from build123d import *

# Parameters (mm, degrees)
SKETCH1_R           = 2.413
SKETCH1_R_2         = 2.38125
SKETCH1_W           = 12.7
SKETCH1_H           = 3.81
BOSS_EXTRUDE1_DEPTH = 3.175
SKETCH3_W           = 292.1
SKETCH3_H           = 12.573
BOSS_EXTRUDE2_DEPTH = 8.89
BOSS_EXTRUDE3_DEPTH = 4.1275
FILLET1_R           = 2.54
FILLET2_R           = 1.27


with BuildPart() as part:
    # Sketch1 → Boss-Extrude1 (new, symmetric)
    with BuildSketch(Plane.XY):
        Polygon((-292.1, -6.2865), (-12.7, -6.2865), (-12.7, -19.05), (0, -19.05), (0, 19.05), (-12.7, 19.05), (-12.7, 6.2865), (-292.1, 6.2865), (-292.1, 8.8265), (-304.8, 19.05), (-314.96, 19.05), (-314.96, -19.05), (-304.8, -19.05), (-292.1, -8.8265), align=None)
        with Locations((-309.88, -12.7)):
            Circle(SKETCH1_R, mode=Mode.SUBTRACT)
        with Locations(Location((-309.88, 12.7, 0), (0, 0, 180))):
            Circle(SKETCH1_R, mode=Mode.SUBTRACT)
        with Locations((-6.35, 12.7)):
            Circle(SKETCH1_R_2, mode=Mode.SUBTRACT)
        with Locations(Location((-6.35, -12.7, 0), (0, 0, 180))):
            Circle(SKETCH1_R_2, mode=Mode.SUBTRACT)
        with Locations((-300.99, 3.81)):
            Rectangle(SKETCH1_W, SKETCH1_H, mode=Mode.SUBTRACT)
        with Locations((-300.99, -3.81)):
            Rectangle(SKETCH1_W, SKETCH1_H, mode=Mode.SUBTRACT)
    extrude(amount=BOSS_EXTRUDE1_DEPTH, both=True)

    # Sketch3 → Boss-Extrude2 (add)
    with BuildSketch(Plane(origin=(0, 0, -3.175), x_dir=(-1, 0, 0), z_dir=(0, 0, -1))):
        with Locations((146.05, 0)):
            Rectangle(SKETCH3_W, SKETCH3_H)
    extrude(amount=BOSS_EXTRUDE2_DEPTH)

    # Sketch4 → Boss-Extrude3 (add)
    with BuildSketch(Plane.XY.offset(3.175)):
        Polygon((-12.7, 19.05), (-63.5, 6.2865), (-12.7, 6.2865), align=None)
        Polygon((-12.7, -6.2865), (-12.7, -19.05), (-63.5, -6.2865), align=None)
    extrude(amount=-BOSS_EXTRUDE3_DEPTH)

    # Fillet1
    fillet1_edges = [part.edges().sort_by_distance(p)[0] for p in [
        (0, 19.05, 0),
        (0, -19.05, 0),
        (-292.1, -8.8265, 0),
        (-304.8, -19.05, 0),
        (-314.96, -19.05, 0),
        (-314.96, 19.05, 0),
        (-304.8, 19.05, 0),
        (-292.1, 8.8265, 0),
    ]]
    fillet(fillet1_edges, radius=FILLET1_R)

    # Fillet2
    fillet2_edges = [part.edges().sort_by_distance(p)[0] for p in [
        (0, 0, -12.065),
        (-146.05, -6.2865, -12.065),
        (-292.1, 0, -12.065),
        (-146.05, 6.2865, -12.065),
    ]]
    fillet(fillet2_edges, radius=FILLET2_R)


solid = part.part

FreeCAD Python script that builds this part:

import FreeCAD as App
import Part
import Sketcher
from FreeCAD import Vector
Q = App.Units.Quantity


def edges_at(feature, points):
    """Names of the edges that pass closest to the given points."""
    edges = feature.Shape.Edges
    near = lambda p: min(range(len(edges)), key=lambda i: edges[i].distToShape(Part.Vertex(*p))[0])
    return sorted({f"Edge{near(p) + 1}" for p in points})

doc = App.newDocument("Part")
params = doc.addObject("Spreadsheet::Sheet", "Params")
for row, (alias, value) in enumerate([
    ("sketch1_diameter", "0.19 in"),
    ("sketch1_width", "11 in"),
    ("sketch1_diameter2", "0.1875 in"),
    ("sketch1_width2", "0.5 in"),
    ("sketch1_width3", "0.4 in"),
    ("pad1_length", "0.25 in"),
    ("sketch2_width", "11.5 in"),
    ("sketch2_height", "0.495 in"),
    ("pad2_length", "0.35 in"),
    ("sketch3_width", "2 in"),
    ("pad3_length", "0.1625 in"),
    ("fillet_radius", "0.1 in"),
    ("fillet2_radius", "0.05 in"),
], start=1):
    params.set(f"A{row}", alias)
    params.set(f"B{row}", "=" + value)
    params.setAlias(f"B{row}", alias)

body = doc.addObject("PartDesign::Body", "Body")

# Sketch on XY plane
sketch1 = body.newObject("Sketcher::SketchObject", "Sketch")
sketch1.AttachmentSupport = (doc.getObject("XY_Plane"), [""])
sketch1.MapMode = "FlatFace"
sketch1.addGeometry(Part.LineSegment(Vector(-292.1, -6.3, 0), Vector(-12.7, -6.3, 0)), False)
sketch1.addGeometry(Part.LineSegment(Vector(-12.7, -6.3, 0), Vector(-12.7, -19.1, 0)), False)
sketch1.addGeometry(Part.LineSegment(Vector(-12.7, -19.1, 0), Vector(0, -19.1, 0)), False)
sketch1.addGeometry(Part.LineSegment(Vector(0, -19.1, 0), Vector(0, 19.1, 0)), False)
sketch1.addGeometry(Part.LineSegment(Vector(0, 19.1, 0), Vector(-12.7, 19.1, 0)), False)
sketch1.addGeometry(Part.LineSegment(Vector(-12.7, 19.1, 0), Vector(-12.7, 6.3, 0)), False)
sketch1.addGeometry(Part.LineSegment(Vector(-12.7, 6.3, 0), Vector(-292.1, 6.3, 0)), False)
sketch1.addGeometry(Part.LineSegment(Vector(-292.1, 6.3, 0), Vector(-292.1, 8.8, 0)), False)
sketch1.addGeometry(Part.LineSegment(Vector(-292.1, 8.8, 0), Vector(-304.8, 19.1, 0)), False)
sketch1.addGeometry(Part.LineSegment(Vector(-304.8, 19.1, 0), Vector(-315, 19.1, 0)), False)
sketch1.addGeometry(Part.LineSegment(Vector(-315, 19.1, 0), Vector(-315, -19.1, 0)), False)
sketch1.addGeometry(Part.LineSegment(Vector(-315, -19.1, 0), Vector(-304.8, -19.1, 0)), False)
sketch1.addGeometry(Part.LineSegment(Vector(-304.8, -19.1, 0), Vector(-292.1, -8.8, 0)), False)
sketch1.addGeometry(Part.LineSegment(Vector(-292.1, -8.8, 0), Vector(-292.1, -6.3, 0)), False)
sketch1.addGeometry(Part.Circle(Vector(-309.9, -12.7, 0), Vector(0, 0, 1), 2.4), False)
sketch1.addGeometry(Part.LineSegment(Vector(-294.6, -5.7, 0), Vector(-307.3, -5.7, 0)), False)
sketch1.addGeometry(Part.LineSegment(Vector(-307.3, -5.7, 0), Vector(-307.3, -1.9, 0)), False)
sketch1.addGeometry(Part.LineSegment(Vector(-307.3, -1.9, 0), Vector(-294.6, -1.9, 0)), False)
sketch1.addGeometry(Part.LineSegment(Vector(-294.6, -1.9, 0), Vector(-294.6, -5.7, 0)), False)
sketch1.addGeometry(Part.Circle(Vector(-6.3, -12.7, 0), Vector(0, 0, 1), 2.4), False)
sketch1.addGeometry(Part.LineSegment(Vector(-294.6, 1.9, 0), Vector(-307.3, 1.9, 0)), False)
sketch1.addGeometry(Part.LineSegment(Vector(-307.3, 1.9, 0), Vector(-307.3, 5.7, 0)), False)
sketch1.addGeometry(Part.LineSegment(Vector(-307.3, 5.7, 0), Vector(-294.6, 5.7, 0)), False)
sketch1.addGeometry(Part.LineSegment(Vector(-294.6, 5.7, 0), Vector(-294.6, 1.9, 0)), False)
sketch1.addGeometry(Part.Circle(Vector(-309.9, 12.7, 0), Vector(0, 0, 1), 2.4), False)
sketch1.addGeometry(Part.Circle(Vector(-6.3, 12.7, 0), Vector(0, 0, 1), 2.4), False)
sketch1.addConstraint(Sketcher.Constraint("Coincident", 0, 2, 1, 1))
sketch1.addConstraint(Sketcher.Constraint("Coincident", 1, 2, 2, 1))
sketch1.addConstraint(Sketcher.Constraint("Coincident", 2, 2, 3, 1))
sketch1.addConstraint(Sketcher.Constraint("Coincident", 3, 2, 4, 1))
sketch1.addConstraint(Sketcher.Constraint("Coincident", 4, 2, 5, 1))
sketch1.addConstraint(Sketcher.Constraint("Coincident", 5, 2, 6, 1))
sketch1.addConstraint(Sketcher.Constraint("Coincident", 6, 2, 7, 1))
sketch1.addConstraint(Sketcher.Constraint("Coincident", 7, 2, 8, 1))
sketch1.addConstraint(Sketcher.Constraint("Coincident", 8, 2, 9, 1))
sketch1.addConstraint(Sketcher.Constraint("Coincident", 9, 2, 10, 1))
sketch1.addConstraint(Sketcher.Constraint("Coincident", 10, 2, 11, 1))
sketch1.addConstraint(Sketcher.Constraint("Coincident", 11, 2, 12, 1))
sketch1.addConstraint(Sketcher.Constraint("Coincident", 12, 2, 13, 1))
sketch1.addConstraint(Sketcher.Constraint("Coincident", 13, 2, 0, 1))
sketch1.addConstraint(Sketcher.Constraint("Coincident", 15, 2, 16, 1))
sketch1.addConstraint(Sketcher.Constraint("Coincident", 16, 2, 17, 1))
sketch1.addConstraint(Sketcher.Constraint("Coincident", 17, 2, 18, 1))
sketch1.addConstraint(Sketcher.Constraint("Coincident", 18, 2, 15, 1))
sketch1.addConstraint(Sketcher.Constraint("Coincident", 20, 2, 21, 1))
sketch1.addConstraint(Sketcher.Constraint("Coincident", 21, 2, 22, 1))
sketch1.addConstraint(Sketcher.Constraint("Coincident", 22, 2, 23, 1))
sketch1.addConstraint(Sketcher.Constraint("Coincident", 23, 2, 20, 1))
sketch1.addConstraint(Sketcher.Constraint("Horizontal", 0))
sketch1.addConstraint(Sketcher.Constraint("Vertical", 1))
sketch1.addConstraint(Sketcher.Constraint("Horizontal", 2))
sketch1.addConstraint(Sketcher.Constraint("Vertical", 3))
sketch1.addConstraint(Sketcher.Constraint("Horizontal", 4))
sketch1.addConstraint(Sketcher.Constraint("Vertical", 5))
sketch1.addConstraint(Sketcher.Constraint("Horizontal", 6))
sketch1.addConstraint(Sketcher.Constraint("Vertical", 7))
sketch1.addConstraint(Sketcher.Constraint("Horizontal", 9))
sketch1.addConstraint(Sketcher.Constraint("Vertical", 10))
sketch1.addConstraint(Sketcher.Constraint("Horizontal", 11))
sketch1.addConstraint(Sketcher.Constraint("Vertical", 13))
sketch1.addConstraint(Sketcher.Constraint("Horizontal", 15))
sketch1.addConstraint(Sketcher.Constraint("Vertical", 16))
sketch1.addConstraint(Sketcher.Constraint("Horizontal", 17))
sketch1.addConstraint(Sketcher.Constraint("Vertical", 18))
sketch1.addConstraint(Sketcher.Constraint("Horizontal", 20))
sketch1.addConstraint(Sketcher.Constraint("Vertical", 21))
sketch1.addConstraint(Sketcher.Constraint("Horizontal", 22))
sketch1.addConstraint(Sketcher.Constraint("Vertical", 23))
sketch1.addConstraint(Sketcher.Constraint("Equal", 14, 24))
sketch1.addConstraint(Sketcher.Constraint("Equal", 19, 25))
sketch1.addConstraint(Sketcher.Constraint("Symmetric", 2, 2, 3, 2, -1, 1))
sketch1.addConstraint(Sketcher.Constraint("Symmetric", 14, 3, 24, 3, -1))
sketch1.addConstraint(Sketcher.Constraint("Symmetric", 19, 3, 25, 3, -1))
sketch1.addConstraint(Sketcher.Constraint("Symmetric", 0, 2, 5, 2, -1))
sketch1.addConstraint(Sketcher.Constraint("Symmetric", 8, 2, 11, 2, -1))
sketch1.addConstraint(Sketcher.Constraint("Symmetric", 7, 2, 12, 2, -1))
sketch1.addConstraint(Sketcher.Constraint("Symmetric", 16, 2, 20, 2, -1))
sketch1.addConstraint(Sketcher.Constraint("Symmetric", 18, 2, 22, 2, -1))
sketch1.addConstraint(Sketcher.Constraint("Horizontal", 14, 3, 19, 3))
sketch1.addConstraint(Sketcher.Constraint("Horizontal", 4, 2, 8, 2))
sketch1.addConstraint(Sketcher.Constraint("Equal", 4, 15))
sketch1.addConstraint(Sketcher.Constraint("Diameter", 14, Q("0.19 in")))
sketch1.addConstraint(Sketcher.Constraint("DistanceX", 0, 1, 0, 2, Q("11 in")))
sketch1.addConstraint(Sketcher.Constraint("Diameter", 19, Q("0.1875 in")))
sketch1.addConstraint(Sketcher.Constraint("DistanceX", 2, 1, 2, 2, Q("0.5 in")))
sketch1.addConstraint(Sketcher.Constraint("DistanceX", 9, 2, 9, 1, Q("0.4 in")))
sketch1.addConstraint(Sketcher.Constraint("DistanceY", 3, 1, 3, 2, Q("1.5 in")))
sketch1.addConstraint(Sketcher.Constraint("DistanceY", 7, 1, 7, 2, Q("0.1 in")))
sketch1.addConstraint(Sketcher.Constraint("DistanceX", 8, 2, -1, 1, Q("12 in")))
sketch1.addConstraint(Sketcher.Constraint("DistanceY", 14, 3, 24, 3, Q("1 in")))
sketch1.addConstraint(Sketcher.Constraint("DistanceY", 16, 1, 16, 2, Q("0.15 in")))
sketch1.addConstraint(Sketcher.Constraint("DistanceX", 14, 3, -1, 1, Q("12.2 in")))
sketch1.addConstraint(Sketcher.Constraint("DistanceX", 15, 2, -1, 1, Q("12.1 in")))
sketch1.addConstraint(Sketcher.Constraint("DistanceY", 15, 2, 20, 2, Q("0.3 in")))
sketch1.addConstraint(Sketcher.Constraint("DistanceX", 19, 3, -1, 1, Q("0.25 in")))
sketch1.addConstraint(Sketcher.Constraint("DistanceY", 1, 2, 1, 1, Q("0.5025 in")))
sketch1.setExpression("Constraints[55]", "Params.sketch1_diameter")
sketch1.setExpression("Constraints[56]", "Params.sketch1_width")
sketch1.setExpression("Constraints[57]", "Params.sketch1_diameter2")
sketch1.setExpression("Constraints[58]", "Params.sketch1_width2")
sketch1.setExpression("Constraints[59]", "Params.sketch1_width3")
pad1 = body.newObject("PartDesign::Pad", "Pad")
pad1.Profile = sketch1
pad1.setExpression("Length", "Params.pad1_length")
pad1.Midplane = True

# Sketch on XY plane
sketch2 = body.newObject("Sketcher::SketchObject", "Sketch001")
sketch2.AttachmentSupport = (doc.getObject("XY_Plane"), [""])
sketch2.MapMode = "FlatFace"
sketch2.AttachmentOffset = App.Placement(Vector(0, 0, -0.125 * 25.4), App.Rotation())
sketch2.addGeometry(Part.LineSegment(Vector(0, 6, 0), Vector(0, -6, 0)), False)
sketch2.addGeometry(Part.LineSegment(Vector(0, -6, 0), Vector(-292, -6, 0)), False)
sketch2.addGeometry(Part.LineSegment(Vector(-292, -6, 0), Vector(-292, 6, 0)), False)
sketch2.addGeometry(Part.LineSegment(Vector(-292, 6, 0), Vector(0, 6, 0)), False)
sketch2.addConstraint(Sketcher.Constraint("Coincident", 0, 2, 1, 1))
sketch2.addConstraint(Sketcher.Constraint("Coincident", 1, 2, 2, 1))
sketch2.addConstraint(Sketcher.Constraint("Coincident", 2, 2, 3, 1))
sketch2.addConstraint(Sketcher.Constraint("Coincident", 3, 2, 0, 1))
sketch2.addConstraint(Sketcher.Constraint("Vertical", 0))
sketch2.addConstraint(Sketcher.Constraint("Horizontal", 1))
sketch2.addConstraint(Sketcher.Constraint("Vertical", 2))
sketch2.addConstraint(Sketcher.Constraint("Horizontal", 3))
sketch2.addConstraint(Sketcher.Constraint("Symmetric", 0, 2, 3, 2, -1, 1))
sketch2.addConstraint(Sketcher.Constraint("DistanceX", 1, 2, 1, 1, Q("11.5 in")))
sketch2.addConstraint(Sketcher.Constraint("DistanceY", 0, 2, 0, 1, Q("0.495 in")))
sketch2.setExpression("Constraints[9]", "Params.sketch2_width")
sketch2.setExpression("Constraints[10]", "Params.sketch2_height")
pad2 = body.newObject("PartDesign::Pad", "Pad001")
pad2.Profile = sketch2
pad2.setExpression("Length", "Params.pad2_length")
pad2.Reversed = True

# Sketch on XY plane
sketch3 = body.newObject("Sketcher::SketchObject", "Sketch002")
sketch3.AttachmentSupport = (doc.getObject("XY_Plane"), [""])
sketch3.MapMode = "FlatFace"
sketch3.AttachmentOffset = App.Placement(Vector(0, 0, 0.125 * 25.4), App.Rotation())
sketch3.addGeometry(Part.LineSegment(Vector(-13, 19, 0), Vector(-64, 6, 0)), False)
sketch3.addGeometry(Part.LineSegment(Vector(-64, 6, 0), Vector(-13, 6, 0)), False)
sketch3.addGeometry(Part.LineSegment(Vector(-13, 6, 0), Vector(-13, 19, 0)), False)
sketch3.addGeometry(Part.LineSegment(Vector(-13, -19, 0), Vector(-13, -6, 0)), False)
sketch3.addGeometry(Part.LineSegment(Vector(-13, -6, 0), Vector(-64, -6, 0)), False)
sketch3.addGeometry(Part.LineSegment(Vector(-64, -6, 0), Vector(-13, -19, 0)), False)
sketch3.addConstraint(Sketcher.Constraint("Coincident", 0, 2, 1, 1))
sketch3.addConstraint(Sketcher.Constraint("Coincident", 1, 2, 2, 1))
sketch3.addConstraint(Sketcher.Constraint("Coincident", 2, 2, 0, 1))
sketch3.addConstraint(Sketcher.Constraint("Coincident", 3, 2, 4, 1))
sketch3.addConstraint(Sketcher.Constraint("Coincident", 4, 2, 5, 1))
sketch3.addConstraint(Sketcher.Constraint("Coincident", 5, 2, 3, 1))
sketch3.addConstraint(Sketcher.Constraint("Horizontal", 1))
sketch3.addConstraint(Sketcher.Constraint("Vertical", 2))
sketch3.addConstraint(Sketcher.Constraint("Vertical", 3))
sketch3.addConstraint(Sketcher.Constraint("Horizontal", 4))
sketch3.addConstraint(Sketcher.Constraint("Symmetric", 1, 2, 3, 2, -1))
sketch3.addConstraint(Sketcher.Constraint("Vertical", 0, 2, 4, 2))
sketch3.addConstraint(Sketcher.Constraint("Equal", 2, 3))
sketch3.addConstraint(Sketcher.Constraint("DistanceX", 1, 1, 1, 2, Q("2 in")))
sketch3.addConstraint(Sketcher.Constraint("DistanceX", 0, 2, -1, 1, Q("2.5 in")))
sketch3.addConstraint(Sketcher.Constraint("DistanceY", 5, 2, 2, 2, Q("1.5 in")))
sketch3.addConstraint(Sketcher.Constraint("DistanceY", 2, 1, 2, 2, Q("0.5025 in")))
sketch3.setExpression("Constraints[13]", "Params.sketch3_width")
pad3 = body.newObject("PartDesign::Pad", "Pad002")
pad3.Profile = sketch3
pad3.setExpression("Length", "Params.pad3_length")
pad3.Reversed = True
doc.recompute()

fillet = body.newObject("PartDesign::Fillet", "Fillet")
fillet.Base = (pad3, edges_at(pad3, [
    (0, 19.05, 0),
    (0, -19.05, 0),
    (-292.1, -8.826, 0),
    (-304.8, -19.05, 0),
    (-314.96, -19.05, 0),
    (-314.96, 19.05, 0),
    (-304.8, 19.05, 0),
    (-292.1, 8.826, 0),
]))
fillet.setExpression("Radius", "Params.fillet_radius")
doc.recompute()

fillet2 = body.newObject("PartDesign::Fillet", "Fillet001")
fillet2.Base = (fillet, edges_at(fillet, [
    (0, 0, -12.065),
    (-146.05, -6.287, -12.065),
    (-292.1, 0, -12.065),
    (-146.05, 6.287, -12.065),
]))
fillet2.setExpression("Radius", "Params.fillet2_radius")

doc.recompute()
